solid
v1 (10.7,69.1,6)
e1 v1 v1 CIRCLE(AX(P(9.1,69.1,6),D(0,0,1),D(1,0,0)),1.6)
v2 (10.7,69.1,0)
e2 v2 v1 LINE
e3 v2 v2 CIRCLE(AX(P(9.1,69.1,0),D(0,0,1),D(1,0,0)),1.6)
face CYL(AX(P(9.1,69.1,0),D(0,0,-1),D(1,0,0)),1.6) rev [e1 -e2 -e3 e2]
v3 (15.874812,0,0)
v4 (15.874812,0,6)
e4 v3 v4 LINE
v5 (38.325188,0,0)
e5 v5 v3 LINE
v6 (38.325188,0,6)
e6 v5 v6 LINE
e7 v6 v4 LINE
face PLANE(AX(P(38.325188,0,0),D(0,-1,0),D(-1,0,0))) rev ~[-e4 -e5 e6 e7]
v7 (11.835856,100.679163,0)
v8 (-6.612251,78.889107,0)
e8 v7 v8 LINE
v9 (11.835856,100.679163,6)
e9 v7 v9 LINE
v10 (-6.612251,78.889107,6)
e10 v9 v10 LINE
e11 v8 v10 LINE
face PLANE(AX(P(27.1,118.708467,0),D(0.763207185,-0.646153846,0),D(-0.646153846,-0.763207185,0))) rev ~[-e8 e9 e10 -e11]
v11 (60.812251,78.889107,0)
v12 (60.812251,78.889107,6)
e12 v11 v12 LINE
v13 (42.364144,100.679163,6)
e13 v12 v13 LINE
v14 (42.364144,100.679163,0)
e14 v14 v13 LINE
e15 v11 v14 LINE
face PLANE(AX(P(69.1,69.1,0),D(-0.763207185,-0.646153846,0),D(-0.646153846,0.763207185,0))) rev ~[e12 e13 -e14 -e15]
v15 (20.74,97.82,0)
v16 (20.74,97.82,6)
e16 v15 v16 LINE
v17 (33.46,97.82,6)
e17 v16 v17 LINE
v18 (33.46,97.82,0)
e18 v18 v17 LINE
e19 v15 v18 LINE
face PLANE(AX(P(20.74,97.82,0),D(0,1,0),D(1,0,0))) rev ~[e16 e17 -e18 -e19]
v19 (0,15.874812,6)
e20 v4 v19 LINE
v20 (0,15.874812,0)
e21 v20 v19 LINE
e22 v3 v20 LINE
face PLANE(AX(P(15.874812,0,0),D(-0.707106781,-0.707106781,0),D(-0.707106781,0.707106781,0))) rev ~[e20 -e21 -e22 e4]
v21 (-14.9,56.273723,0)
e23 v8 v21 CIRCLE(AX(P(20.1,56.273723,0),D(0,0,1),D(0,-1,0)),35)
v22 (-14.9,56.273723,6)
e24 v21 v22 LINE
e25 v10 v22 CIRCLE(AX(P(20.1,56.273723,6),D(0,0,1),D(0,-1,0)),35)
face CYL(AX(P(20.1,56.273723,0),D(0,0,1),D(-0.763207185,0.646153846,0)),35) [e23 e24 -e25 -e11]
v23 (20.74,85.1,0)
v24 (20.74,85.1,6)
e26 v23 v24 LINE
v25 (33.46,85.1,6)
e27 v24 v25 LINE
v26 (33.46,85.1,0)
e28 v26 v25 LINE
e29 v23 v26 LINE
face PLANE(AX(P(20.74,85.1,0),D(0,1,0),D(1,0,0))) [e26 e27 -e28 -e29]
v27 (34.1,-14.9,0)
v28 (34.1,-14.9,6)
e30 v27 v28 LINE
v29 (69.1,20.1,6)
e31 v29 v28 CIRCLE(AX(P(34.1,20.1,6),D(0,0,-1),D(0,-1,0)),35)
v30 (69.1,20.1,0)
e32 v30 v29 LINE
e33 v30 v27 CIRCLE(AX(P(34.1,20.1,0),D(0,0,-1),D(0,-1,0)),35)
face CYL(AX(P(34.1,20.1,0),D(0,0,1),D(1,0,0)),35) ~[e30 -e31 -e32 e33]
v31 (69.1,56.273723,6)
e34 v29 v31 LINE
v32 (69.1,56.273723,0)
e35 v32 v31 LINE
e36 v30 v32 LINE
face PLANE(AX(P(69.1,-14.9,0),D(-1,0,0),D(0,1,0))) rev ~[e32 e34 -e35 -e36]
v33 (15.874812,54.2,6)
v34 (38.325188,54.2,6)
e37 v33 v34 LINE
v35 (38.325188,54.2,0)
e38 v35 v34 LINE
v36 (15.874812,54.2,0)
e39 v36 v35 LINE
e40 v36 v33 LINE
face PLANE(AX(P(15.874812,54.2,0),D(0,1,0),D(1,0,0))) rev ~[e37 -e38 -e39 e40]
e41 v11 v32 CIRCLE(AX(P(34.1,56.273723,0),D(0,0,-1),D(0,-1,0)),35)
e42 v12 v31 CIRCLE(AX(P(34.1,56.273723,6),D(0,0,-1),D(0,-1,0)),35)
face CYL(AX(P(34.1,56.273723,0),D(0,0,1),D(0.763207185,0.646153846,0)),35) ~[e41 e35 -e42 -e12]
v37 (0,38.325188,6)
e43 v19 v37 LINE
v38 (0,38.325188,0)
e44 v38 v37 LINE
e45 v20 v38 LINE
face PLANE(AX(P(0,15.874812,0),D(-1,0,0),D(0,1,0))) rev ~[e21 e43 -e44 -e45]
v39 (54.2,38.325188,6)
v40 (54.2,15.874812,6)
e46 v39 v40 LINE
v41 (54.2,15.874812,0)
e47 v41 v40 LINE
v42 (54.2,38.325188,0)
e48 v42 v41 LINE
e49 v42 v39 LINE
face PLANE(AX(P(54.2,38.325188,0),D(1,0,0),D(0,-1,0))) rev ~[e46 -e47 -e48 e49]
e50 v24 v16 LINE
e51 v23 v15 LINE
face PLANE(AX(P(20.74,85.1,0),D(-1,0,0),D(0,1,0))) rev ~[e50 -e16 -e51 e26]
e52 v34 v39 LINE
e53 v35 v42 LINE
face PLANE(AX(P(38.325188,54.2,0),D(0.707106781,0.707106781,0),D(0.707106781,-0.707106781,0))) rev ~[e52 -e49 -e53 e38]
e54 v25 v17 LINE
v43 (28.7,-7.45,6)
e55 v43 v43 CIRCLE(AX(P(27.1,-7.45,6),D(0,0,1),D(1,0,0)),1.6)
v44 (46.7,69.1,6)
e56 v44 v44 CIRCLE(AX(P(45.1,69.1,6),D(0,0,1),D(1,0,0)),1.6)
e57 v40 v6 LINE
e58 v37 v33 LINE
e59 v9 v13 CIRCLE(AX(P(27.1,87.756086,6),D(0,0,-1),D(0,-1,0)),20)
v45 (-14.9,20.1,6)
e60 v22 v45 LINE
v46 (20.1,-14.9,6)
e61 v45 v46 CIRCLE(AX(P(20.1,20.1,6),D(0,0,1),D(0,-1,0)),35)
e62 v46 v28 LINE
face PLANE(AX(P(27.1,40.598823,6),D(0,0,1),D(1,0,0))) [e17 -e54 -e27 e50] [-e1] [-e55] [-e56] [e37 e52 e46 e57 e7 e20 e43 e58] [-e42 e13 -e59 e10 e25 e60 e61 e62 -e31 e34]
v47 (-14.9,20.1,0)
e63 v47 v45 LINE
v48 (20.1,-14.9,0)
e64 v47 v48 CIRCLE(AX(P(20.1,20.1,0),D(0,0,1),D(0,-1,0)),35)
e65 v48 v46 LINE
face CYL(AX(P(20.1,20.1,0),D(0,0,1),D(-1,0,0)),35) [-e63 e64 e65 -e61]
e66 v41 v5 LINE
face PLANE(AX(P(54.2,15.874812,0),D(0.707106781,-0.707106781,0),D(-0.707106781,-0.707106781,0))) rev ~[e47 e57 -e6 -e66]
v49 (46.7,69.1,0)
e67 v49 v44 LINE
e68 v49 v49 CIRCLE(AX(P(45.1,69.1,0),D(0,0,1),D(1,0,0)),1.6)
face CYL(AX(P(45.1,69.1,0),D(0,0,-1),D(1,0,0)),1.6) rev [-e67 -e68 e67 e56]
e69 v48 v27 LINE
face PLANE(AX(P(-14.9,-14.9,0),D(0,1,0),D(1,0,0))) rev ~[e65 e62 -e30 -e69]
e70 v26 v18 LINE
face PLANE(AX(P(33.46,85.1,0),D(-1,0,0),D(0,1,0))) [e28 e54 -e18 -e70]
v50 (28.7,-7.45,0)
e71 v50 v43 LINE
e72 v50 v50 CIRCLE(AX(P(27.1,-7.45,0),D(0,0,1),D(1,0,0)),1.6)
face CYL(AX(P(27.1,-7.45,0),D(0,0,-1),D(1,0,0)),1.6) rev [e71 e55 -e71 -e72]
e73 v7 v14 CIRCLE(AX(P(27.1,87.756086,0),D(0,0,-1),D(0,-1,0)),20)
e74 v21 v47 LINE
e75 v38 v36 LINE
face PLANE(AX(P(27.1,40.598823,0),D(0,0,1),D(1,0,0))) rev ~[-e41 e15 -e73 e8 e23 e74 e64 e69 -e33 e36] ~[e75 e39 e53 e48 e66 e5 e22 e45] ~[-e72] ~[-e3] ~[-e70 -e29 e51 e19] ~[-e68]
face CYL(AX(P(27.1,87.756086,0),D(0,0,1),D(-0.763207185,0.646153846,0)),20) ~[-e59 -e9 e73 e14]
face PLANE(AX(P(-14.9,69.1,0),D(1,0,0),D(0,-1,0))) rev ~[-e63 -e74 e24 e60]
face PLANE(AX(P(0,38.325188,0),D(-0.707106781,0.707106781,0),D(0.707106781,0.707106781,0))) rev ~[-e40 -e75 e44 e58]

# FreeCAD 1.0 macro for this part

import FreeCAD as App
import Part
import Sketcher
Q = App.Units.Quantity


def edges_at(feature, points):
    """Names of the edges that pass closest to the given points."""
    edges = feature.Shape.Edges
    near = lambda p: min(range(len(edges)), key=lambda i: edges[i].distToShape(Part.Vertex(*p))[0])
    return sorted({f"Edge{near(p) + 1}" for p in points})


def add_polygon(sketch, points):
    """Adds a closed chain of lines whose ends are joined by coincident constraints."""
    first, n = sketch.GeometryCount, len(points)
    for a, b in zip(points, points[1:] + points[:1]):
        sketch.addGeometry(Part.LineSegment(App.Vector(*a, 0), App.Vector(*b, 0)), False)
    for i in range(n):
        sketch.addConstraint(Sketcher.Constraint("Coincident", first + i, 2, first + (i + 1) % n, 1))

doc = App.newDocument("Part")
body = doc.addObject("PartDesign::Body", "Body")

# Sketch on XY plane
sketch1 = body.newObject("Sketcher::SketchObject", "Sketch")
sketch1.AttachmentSupport = (doc.getObject("XY_Plane"), [""])
sketch1.MapMode = "FlatFace"
add_polygon(sketch1, [(27.1, 118.7), (-14.9, 69.1), (-14.9, -14.9), (69.1, -14.9), (69.1, 69.1)])  # lines 0-4
sketch1.addGeometry(Part.Circle(App.Vector(27.1, -7.5, 0), App.Vector(0, 0, 1), 1.6), False)  # 5
add_polygon(sketch1, [(15.9, 0), (0, 15.9), (0, 38.3), (15.9, 54.2), (38.3, 54.2), (54.2, 38.3), (54.2, 15.9), (38.3, 0)])  # lines 6-13
sketch1.addGeometry(Part.Circle(App.Vector(9.1, 69.1, 0), App.Vector(0, 0, 1), 1.6), False)  # 14
sketch1.addGeometry(Part.Circle(App.Vector(45.1, 69.1, 0), App.Vector(0, 0, 1), 1.6), False)  # 15
add_polygon(sketch1, [(33.5, 85.1), (20.7, 85.1), (20.7, 97.8), (33.5, 97.8)])  # lines 16-19
sketch1.addConstraint([
    Sketcher.Constraint("Vertical", 1),
    Sketcher.Constraint("Horizontal", 2),
    Sketcher.Constraint("Vertical", 3),
    Sketcher.Constraint("Vertical", 7),
    Sketcher.Constraint("Horizontal", 9),
    Sketcher.Constraint("Vertical", 11),
    Sketcher.Constraint("Horizontal", 13),
    Sketcher.Constraint("Horizontal", 16),
    Sketcher.Constraint("Vertical", 17),
    Sketcher.Constraint("Horizontal", 18),
    Sketcher.Constraint("Vertical", 19),
    Sketcher.Constraint("Equal", 5, 14),
    Sketcher.Constraint("Equal", 14, 15),
    Sketcher.Constraint("PointOnObject", 6, 2, -2),
    Sketcher.Constraint("PointOnObject", 12, 2, -1),
    Sketcher.Constraint("Perpendicular", 6, 8),
    Sketcher.Constraint("Perpendicular", 8, 10),
    Sketcher.Constraint("Perpendicular", 10, 12),
    Sketcher.Constraint("Horizontal", 14, 3, 15, 3),
    Sketcher.Constraint("Horizontal", 15, 3, 0, 2),
    Sketcher.Constraint("Horizontal", 0, 2, 3, 2),
    Sketcher.Constraint("Horizontal", 7, 2, 10, 2),
    Sketcher.Constraint("Horizontal", 6, 2, 11, 2),
    Sketcher.Constraint("Vertical", 5, 3, 4, 2),
    Sketcher.Constraint("Vertical", 9, 2, 12, 2),
    Sketcher.Constraint("Vertical", 8, 2, 13, 2),
    Sketcher.Constraint("Equal", 2, 1),
    Sketcher.Constraint("Equal", 13, 7),
    Sketcher.Constraint("Equal", 18, 17),
    Sketcher.Constraint("Equal", 0, 4),
    Sketcher.Constraint("Diameter", 5, Q("3.2 mm")),
    Sketcher.Constraint("DistanceX", 2, 1, 2, 2, Q("84 mm")),
    Sketcher.Constraint("Distance", 0, Q("65 mm")),
    Sketcher.Constraint("DistanceX", 14, 3, 5, 3, Q("18 mm")),
    Sketcher.Constraint("DistanceX", 14, 3, 15, 3, Q("36 mm")),
    Sketcher.Constraint("DistanceY", 14, 3, 16, 2, Q("16 mm")),
    Sketcher.Constraint("DistanceX", 16, 2, 16, 1, Q("12.72 mm")),
    Sketcher.Constraint("DistanceX", -1, 1, 5, 3, Q("27.1 mm")),
    Sketcher.Constraint("DistanceY", -1, 1, 14, 3, Q("69.1 mm")),
    Sketcher.Constraint("DistanceY", -1, 1, 8, 2, Q("54.2 mm")),
    Sketcher.Constraint("DistanceY", 5, 3, -1, 1, Q("7.45 mm")),
    Sketcher.Constraint("DistanceX", -1, 1, 16, 2, Q("20.74 mm")),
    Sketcher.Constraint("DistanceX", 9, 1, 9, 2, Q("22.450376 mm")),
])
pad1 = body.newObject("PartDesign::Pad", "Pad")
pad1.Profile = sketch1
pad1.Length = 6
doc.recompute()

fillet = body.newObject("PartDesign::Fillet", "Fillet")
fillet.Base = (pad1, edges_at(pad1, [
    (69.1, -14.9, 3),
    (-14.9, -14.9, 3),
    (-14.9, 69.1, 3),
    (69.1, 69.1, 3),
]))
fillet.Radius = 35
doc.recompute()

fillet2 = body.newObject("PartDesign::Fillet", "Fillet001")
fillet2.Base = (fillet, edges_at(fillet, [(27.1, 118.708, 3)]))
fillet2.Radius = 20

doc.recompute()
